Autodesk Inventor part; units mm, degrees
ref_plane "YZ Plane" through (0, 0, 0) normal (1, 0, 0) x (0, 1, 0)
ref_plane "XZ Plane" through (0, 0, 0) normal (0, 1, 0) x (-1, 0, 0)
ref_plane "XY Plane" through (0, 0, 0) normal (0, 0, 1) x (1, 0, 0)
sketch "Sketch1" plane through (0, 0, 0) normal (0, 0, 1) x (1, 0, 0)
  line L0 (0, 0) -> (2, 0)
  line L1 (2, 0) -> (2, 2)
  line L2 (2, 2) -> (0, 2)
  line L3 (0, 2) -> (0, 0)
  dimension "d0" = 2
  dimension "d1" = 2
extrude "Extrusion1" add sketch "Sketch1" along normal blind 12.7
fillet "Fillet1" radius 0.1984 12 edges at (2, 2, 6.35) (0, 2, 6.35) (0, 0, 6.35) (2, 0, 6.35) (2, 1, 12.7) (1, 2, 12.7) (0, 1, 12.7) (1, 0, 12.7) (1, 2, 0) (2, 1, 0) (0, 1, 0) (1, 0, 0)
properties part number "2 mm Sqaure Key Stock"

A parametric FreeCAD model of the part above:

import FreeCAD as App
import Part
import Sketcher

V = App.Vector
Q = App.Units.Quantity

doc = App.newDocument("Part")
body = doc.addObject("PartDesign::Body", "Body")

sketch1 = body.newObject("Sketcher::SketchObject", "Sketch")
sketch1.AttachmentSupport = (doc.getObject("XY_Plane"), [""])
sketch1.MapMode = "FlatFace"
sketch1.addGeometry([
    Part.LineSegment(V(0, 2, 0), V(0, 0, 0)),
    Part.LineSegment(V(0, 0, 0), V(2, 0, 0)),
    Part.LineSegment(V(2, 0, 0), V(2, 2, 0)),
    Part.LineSegment(V(2, 2, 0), V(0, 2, 0)),
], False)
sketch1.addConstraint([
    Sketcher.Constraint("Coincident", 0, 2, 1, 1),
    Sketcher.Constraint("Coincident", 1, 2, 2, 1),
    Sketcher.Constraint("Coincident", 2, 2, 3, 1),
    Sketcher.Constraint("Coincident", 3, 2, 0, 1),
    Sketcher.Constraint("Vertical", 0),
    Sketcher.Constraint("Horizontal", 1),
    Sketcher.Constraint("Vertical", 2),
    Sketcher.Constraint("Horizontal", 3),
    Sketcher.Constraint("Coincident", 0, 2, -1, 1),
    Sketcher.Constraint("Equal", 3, 0),
    Sketcher.Constraint("DistanceX", 1, 1, 1, 2, Q("2 mm")),
])
pad1 = body.newObject("PartDesign::Pad", "Pad")
pad1.Profile = sketch1
pad1.Length = 12.7
doc.recompute()

fillet = body.newObject("PartDesign::Fillet", "Fillet")
fillet.Base = (pad1, ["Edge1"])
fillet.UseAllEdges = True
fillet.Radius = 0.1984

doc.recompute()
